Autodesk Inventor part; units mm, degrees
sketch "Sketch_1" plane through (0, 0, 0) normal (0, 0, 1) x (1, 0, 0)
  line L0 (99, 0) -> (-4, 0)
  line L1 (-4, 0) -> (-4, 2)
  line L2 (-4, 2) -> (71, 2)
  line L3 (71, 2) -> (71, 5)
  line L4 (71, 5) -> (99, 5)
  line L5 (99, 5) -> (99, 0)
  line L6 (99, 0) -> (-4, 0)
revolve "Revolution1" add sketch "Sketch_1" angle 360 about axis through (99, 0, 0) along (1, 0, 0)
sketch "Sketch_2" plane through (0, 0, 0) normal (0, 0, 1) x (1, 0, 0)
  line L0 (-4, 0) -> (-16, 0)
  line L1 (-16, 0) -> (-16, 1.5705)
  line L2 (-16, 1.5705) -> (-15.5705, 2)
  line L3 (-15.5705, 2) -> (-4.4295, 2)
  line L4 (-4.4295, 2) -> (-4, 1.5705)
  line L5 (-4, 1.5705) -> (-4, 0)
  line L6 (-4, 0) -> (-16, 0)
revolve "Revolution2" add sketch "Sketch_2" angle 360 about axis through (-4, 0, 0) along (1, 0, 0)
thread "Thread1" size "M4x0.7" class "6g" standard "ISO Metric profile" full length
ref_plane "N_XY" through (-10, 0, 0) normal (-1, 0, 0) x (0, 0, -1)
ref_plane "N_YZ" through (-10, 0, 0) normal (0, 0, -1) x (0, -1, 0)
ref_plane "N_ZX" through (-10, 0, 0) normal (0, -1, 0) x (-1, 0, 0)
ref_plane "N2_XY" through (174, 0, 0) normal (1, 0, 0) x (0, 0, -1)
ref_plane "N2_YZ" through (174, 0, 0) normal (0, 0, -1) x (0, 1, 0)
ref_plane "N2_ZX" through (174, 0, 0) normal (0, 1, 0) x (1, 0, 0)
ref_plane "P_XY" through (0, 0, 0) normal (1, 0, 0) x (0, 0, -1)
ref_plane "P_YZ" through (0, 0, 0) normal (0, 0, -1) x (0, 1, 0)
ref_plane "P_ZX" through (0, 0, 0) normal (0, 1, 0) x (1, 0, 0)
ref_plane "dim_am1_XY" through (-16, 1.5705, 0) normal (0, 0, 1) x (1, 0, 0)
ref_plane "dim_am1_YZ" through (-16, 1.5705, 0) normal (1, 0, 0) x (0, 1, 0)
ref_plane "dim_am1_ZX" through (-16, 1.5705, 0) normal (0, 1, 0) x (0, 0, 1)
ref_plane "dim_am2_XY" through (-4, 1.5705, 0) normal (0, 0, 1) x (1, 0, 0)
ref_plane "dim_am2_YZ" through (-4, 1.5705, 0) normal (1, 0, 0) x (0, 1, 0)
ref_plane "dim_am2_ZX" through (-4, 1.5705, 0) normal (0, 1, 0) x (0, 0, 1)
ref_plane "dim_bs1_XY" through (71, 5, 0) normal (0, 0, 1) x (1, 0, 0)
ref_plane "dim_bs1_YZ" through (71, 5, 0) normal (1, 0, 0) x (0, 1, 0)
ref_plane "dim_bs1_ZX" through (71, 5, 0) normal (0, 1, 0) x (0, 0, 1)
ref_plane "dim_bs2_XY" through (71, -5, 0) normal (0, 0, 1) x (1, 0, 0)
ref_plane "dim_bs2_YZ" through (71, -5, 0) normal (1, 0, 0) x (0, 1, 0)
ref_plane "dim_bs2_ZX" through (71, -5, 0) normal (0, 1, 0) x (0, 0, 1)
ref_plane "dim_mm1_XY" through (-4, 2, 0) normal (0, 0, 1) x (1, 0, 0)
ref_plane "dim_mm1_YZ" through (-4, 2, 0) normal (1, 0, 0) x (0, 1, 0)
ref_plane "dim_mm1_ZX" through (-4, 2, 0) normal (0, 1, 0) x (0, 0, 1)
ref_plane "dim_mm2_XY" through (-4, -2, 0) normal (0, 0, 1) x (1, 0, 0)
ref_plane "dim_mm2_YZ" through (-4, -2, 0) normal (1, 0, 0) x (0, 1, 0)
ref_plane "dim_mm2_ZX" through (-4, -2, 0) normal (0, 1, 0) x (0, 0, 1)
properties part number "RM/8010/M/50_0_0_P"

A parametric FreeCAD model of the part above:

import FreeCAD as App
import Part
import Sketcher
Q = App.Units.Quantity

doc = App.newDocument("Part")
body = doc.addObject("PartDesign::Body", "Body")

sketch1 = body.newObject("Sketcher::SketchObject", "Sketch")
sketch1.AttachmentSupport = (doc.getObject("XY_Plane"), [""])
sketch1.MapMode = "FlatFace"
sketch1.addGeometry(Part.LineSegment(App.Vector(-4, 0, 0), App.Vector(99, 0, 0)), False)
sketch1.addGeometry(Part.LineSegment(App.Vector(99, 0, 0), App.Vector(99, 5, 0)), False)
sketch1.addGeometry(Part.LineSegment(App.Vector(99, 5, 0), App.Vector(71, 5, 0)), False)
sketch1.addGeometry(Part.LineSegment(App.Vector(71, 5, 0), App.Vector(71, 2, 0)), False)
sketch1.addGeometry(Part.LineSegment(App.Vector(71, 2, 0), App.Vector(-4, 2, 0)), False)
sketch1.addGeometry(Part.LineSegment(App.Vector(-4, 2, 0), App.Vector(-4, 0, 0)), False)
sketch1.addConstraint(Sketcher.Constraint("Coincident", 0, 2, 1, 1))
sketch1.addConstraint(Sketcher.Constraint("Coincident", 1, 2, 2, 1))
sketch1.addConstraint(Sketcher.Constraint("Coincident", 2, 2, 3, 1))
sketch1.addConstraint(Sketcher.Constraint("Coincident", 3, 2, 4, 1))
sketch1.addConstraint(Sketcher.Constraint("Coincident", 4, 2, 5, 1))
sketch1.addConstraint(Sketcher.Constraint("Coincident", 5, 2, 0, 1))
sketch1.addConstraint(Sketcher.Constraint("Horizontal", 0))
sketch1.addConstraint(Sketcher.Constraint("Vertical", 1))
sketch1.addConstraint(Sketcher.Constraint("Horizontal", 2))
sketch1.addConstraint(Sketcher.Constraint("Vertical", 3))
sketch1.addConstraint(Sketcher.Constraint("Horizontal", 4))
sketch1.addConstraint(Sketcher.Constraint("Vertical", 5))
sketch1.addConstraint(Sketcher.Constraint("PointOnObject", 0, 2, -1))
sketch1.addConstraint(Sketcher.Constraint("DistanceX", 0, 1, 0, 2, Q("103 mm")))
sketch1.addConstraint(Sketcher.Constraint("DistanceX", 2, 2, 2, 1, Q("28 mm")))
sketch1.addConstraint(Sketcher.Constraint("DistanceY", 1, 1, 1, 2, Q("5 mm")))
sketch1.addConstraint(Sketcher.Constraint("DistanceY", 3, 2, 3, 1, Q("3 mm")))
sketch1.addConstraint(Sketcher.Constraint("DistanceX", -1, 1, 0, 2, Q("99 mm")))
revolution = body.newObject("PartDesign::Revolution", "Revolution")
revolution.Profile = sketch1
revolution.ReferenceAxis = (sketch1, ["H_Axis"])
revolution.Angle = 360

sketch2 = body.newObject("Sketcher::SketchObject", "Sketch001")
sketch2.AttachmentSupport = (doc.getObject("XY_Plane"), [""])
sketch2.MapMode = "FlatFace"
sketch2.addGeometry(Part.LineSegment(App.Vector(-16, 0, 0), App.Vector(-4, 0, 0)), False)
sketch2.addGeometry(Part.LineSegment(App.Vector(-4, 0, 0), App.Vector(-4, 1.6, 0)), False)
sketch2.addGeometry(Part.LineSegment(App.Vector(-4, 1.6, 0), App.Vector(-4.4, 2, 0)), False)
sketch2.addGeometry(Part.LineSegment(App.Vector(-4.4, 2, 0), App.Vector(-15.6, 2, 0)), False)
sketch2.addGeometry(Part.LineSegment(App.Vector(-15.6, 2, 0), App.Vector(-16, 1.6, 0)), False)
sketch2.addGeometry(Part.LineSegment(App.Vector(-16, 1.6, 0), App.Vector(-16, 0, 0)), False)
sketch2.addConstraint(Sketcher.Constraint("Coincident", 0, 2, 1, 1))
sketch2.addConstraint(Sketcher.Constraint("Coincident", 1, 2, 2, 1))
sketch2.addConstraint(Sketcher.Constraint("Coincident", 2, 2, 3, 1))
sketch2.addConstraint(Sketcher.Constraint("Coincident", 3, 2, 4, 1))
sketch2.addConstraint(Sketcher.Constraint("Coincident", 4, 2, 5, 1))
sketch2.addConstraint(Sketcher.Constraint("Coincident", 5, 2, 0, 1))
sketch2.addConstraint(Sketcher.Constraint("Horizontal", 0))
sketch2.addConstraint(Sketcher.Constraint("Vertical", 1))
sketch2.addConstraint(Sketcher.Constraint("Horizontal", 3))
sketch2.addConstraint(Sketcher.Constraint("Vertical", 5))
sketch2.addConstraint(Sketcher.Constraint("PointOnObject", 0, 2, -1))
sketch2.addConstraint(Sketcher.Constraint("Perpendicular", 2, 4))
sketch2.addConstraint(Sketcher.Constraint("Horizontal", 1, 2, 4, 2))
sketch2.addConstraint(Sketcher.Constraint("Equal", 2, 4))
sketch2.addConstraint(Sketcher.Constraint("DistanceX", 0, 1, 0, 2, Q("12 mm")))
sketch2.addConstraint(Sketcher.Constraint("DistanceX", 0, 2, -1, 1, Q("4 mm")))
sketch2.addConstraint(Sketcher.Constraint("DistanceY", -1, 1, 2, 2, Q("2 mm")))
sketch2.addConstraint(Sketcher.Constraint("DistanceX", 3, 2, 3, 1, Q("11.141 mm")))
revolution2 = body.newObject("PartDesign::Revolution", "Revolution001")
revolution2.Profile = sketch2
revolution2.ReferenceAxis = (sketch2, ["H_Axis"])
revolution2.Angle = 360

doc.recompute()
